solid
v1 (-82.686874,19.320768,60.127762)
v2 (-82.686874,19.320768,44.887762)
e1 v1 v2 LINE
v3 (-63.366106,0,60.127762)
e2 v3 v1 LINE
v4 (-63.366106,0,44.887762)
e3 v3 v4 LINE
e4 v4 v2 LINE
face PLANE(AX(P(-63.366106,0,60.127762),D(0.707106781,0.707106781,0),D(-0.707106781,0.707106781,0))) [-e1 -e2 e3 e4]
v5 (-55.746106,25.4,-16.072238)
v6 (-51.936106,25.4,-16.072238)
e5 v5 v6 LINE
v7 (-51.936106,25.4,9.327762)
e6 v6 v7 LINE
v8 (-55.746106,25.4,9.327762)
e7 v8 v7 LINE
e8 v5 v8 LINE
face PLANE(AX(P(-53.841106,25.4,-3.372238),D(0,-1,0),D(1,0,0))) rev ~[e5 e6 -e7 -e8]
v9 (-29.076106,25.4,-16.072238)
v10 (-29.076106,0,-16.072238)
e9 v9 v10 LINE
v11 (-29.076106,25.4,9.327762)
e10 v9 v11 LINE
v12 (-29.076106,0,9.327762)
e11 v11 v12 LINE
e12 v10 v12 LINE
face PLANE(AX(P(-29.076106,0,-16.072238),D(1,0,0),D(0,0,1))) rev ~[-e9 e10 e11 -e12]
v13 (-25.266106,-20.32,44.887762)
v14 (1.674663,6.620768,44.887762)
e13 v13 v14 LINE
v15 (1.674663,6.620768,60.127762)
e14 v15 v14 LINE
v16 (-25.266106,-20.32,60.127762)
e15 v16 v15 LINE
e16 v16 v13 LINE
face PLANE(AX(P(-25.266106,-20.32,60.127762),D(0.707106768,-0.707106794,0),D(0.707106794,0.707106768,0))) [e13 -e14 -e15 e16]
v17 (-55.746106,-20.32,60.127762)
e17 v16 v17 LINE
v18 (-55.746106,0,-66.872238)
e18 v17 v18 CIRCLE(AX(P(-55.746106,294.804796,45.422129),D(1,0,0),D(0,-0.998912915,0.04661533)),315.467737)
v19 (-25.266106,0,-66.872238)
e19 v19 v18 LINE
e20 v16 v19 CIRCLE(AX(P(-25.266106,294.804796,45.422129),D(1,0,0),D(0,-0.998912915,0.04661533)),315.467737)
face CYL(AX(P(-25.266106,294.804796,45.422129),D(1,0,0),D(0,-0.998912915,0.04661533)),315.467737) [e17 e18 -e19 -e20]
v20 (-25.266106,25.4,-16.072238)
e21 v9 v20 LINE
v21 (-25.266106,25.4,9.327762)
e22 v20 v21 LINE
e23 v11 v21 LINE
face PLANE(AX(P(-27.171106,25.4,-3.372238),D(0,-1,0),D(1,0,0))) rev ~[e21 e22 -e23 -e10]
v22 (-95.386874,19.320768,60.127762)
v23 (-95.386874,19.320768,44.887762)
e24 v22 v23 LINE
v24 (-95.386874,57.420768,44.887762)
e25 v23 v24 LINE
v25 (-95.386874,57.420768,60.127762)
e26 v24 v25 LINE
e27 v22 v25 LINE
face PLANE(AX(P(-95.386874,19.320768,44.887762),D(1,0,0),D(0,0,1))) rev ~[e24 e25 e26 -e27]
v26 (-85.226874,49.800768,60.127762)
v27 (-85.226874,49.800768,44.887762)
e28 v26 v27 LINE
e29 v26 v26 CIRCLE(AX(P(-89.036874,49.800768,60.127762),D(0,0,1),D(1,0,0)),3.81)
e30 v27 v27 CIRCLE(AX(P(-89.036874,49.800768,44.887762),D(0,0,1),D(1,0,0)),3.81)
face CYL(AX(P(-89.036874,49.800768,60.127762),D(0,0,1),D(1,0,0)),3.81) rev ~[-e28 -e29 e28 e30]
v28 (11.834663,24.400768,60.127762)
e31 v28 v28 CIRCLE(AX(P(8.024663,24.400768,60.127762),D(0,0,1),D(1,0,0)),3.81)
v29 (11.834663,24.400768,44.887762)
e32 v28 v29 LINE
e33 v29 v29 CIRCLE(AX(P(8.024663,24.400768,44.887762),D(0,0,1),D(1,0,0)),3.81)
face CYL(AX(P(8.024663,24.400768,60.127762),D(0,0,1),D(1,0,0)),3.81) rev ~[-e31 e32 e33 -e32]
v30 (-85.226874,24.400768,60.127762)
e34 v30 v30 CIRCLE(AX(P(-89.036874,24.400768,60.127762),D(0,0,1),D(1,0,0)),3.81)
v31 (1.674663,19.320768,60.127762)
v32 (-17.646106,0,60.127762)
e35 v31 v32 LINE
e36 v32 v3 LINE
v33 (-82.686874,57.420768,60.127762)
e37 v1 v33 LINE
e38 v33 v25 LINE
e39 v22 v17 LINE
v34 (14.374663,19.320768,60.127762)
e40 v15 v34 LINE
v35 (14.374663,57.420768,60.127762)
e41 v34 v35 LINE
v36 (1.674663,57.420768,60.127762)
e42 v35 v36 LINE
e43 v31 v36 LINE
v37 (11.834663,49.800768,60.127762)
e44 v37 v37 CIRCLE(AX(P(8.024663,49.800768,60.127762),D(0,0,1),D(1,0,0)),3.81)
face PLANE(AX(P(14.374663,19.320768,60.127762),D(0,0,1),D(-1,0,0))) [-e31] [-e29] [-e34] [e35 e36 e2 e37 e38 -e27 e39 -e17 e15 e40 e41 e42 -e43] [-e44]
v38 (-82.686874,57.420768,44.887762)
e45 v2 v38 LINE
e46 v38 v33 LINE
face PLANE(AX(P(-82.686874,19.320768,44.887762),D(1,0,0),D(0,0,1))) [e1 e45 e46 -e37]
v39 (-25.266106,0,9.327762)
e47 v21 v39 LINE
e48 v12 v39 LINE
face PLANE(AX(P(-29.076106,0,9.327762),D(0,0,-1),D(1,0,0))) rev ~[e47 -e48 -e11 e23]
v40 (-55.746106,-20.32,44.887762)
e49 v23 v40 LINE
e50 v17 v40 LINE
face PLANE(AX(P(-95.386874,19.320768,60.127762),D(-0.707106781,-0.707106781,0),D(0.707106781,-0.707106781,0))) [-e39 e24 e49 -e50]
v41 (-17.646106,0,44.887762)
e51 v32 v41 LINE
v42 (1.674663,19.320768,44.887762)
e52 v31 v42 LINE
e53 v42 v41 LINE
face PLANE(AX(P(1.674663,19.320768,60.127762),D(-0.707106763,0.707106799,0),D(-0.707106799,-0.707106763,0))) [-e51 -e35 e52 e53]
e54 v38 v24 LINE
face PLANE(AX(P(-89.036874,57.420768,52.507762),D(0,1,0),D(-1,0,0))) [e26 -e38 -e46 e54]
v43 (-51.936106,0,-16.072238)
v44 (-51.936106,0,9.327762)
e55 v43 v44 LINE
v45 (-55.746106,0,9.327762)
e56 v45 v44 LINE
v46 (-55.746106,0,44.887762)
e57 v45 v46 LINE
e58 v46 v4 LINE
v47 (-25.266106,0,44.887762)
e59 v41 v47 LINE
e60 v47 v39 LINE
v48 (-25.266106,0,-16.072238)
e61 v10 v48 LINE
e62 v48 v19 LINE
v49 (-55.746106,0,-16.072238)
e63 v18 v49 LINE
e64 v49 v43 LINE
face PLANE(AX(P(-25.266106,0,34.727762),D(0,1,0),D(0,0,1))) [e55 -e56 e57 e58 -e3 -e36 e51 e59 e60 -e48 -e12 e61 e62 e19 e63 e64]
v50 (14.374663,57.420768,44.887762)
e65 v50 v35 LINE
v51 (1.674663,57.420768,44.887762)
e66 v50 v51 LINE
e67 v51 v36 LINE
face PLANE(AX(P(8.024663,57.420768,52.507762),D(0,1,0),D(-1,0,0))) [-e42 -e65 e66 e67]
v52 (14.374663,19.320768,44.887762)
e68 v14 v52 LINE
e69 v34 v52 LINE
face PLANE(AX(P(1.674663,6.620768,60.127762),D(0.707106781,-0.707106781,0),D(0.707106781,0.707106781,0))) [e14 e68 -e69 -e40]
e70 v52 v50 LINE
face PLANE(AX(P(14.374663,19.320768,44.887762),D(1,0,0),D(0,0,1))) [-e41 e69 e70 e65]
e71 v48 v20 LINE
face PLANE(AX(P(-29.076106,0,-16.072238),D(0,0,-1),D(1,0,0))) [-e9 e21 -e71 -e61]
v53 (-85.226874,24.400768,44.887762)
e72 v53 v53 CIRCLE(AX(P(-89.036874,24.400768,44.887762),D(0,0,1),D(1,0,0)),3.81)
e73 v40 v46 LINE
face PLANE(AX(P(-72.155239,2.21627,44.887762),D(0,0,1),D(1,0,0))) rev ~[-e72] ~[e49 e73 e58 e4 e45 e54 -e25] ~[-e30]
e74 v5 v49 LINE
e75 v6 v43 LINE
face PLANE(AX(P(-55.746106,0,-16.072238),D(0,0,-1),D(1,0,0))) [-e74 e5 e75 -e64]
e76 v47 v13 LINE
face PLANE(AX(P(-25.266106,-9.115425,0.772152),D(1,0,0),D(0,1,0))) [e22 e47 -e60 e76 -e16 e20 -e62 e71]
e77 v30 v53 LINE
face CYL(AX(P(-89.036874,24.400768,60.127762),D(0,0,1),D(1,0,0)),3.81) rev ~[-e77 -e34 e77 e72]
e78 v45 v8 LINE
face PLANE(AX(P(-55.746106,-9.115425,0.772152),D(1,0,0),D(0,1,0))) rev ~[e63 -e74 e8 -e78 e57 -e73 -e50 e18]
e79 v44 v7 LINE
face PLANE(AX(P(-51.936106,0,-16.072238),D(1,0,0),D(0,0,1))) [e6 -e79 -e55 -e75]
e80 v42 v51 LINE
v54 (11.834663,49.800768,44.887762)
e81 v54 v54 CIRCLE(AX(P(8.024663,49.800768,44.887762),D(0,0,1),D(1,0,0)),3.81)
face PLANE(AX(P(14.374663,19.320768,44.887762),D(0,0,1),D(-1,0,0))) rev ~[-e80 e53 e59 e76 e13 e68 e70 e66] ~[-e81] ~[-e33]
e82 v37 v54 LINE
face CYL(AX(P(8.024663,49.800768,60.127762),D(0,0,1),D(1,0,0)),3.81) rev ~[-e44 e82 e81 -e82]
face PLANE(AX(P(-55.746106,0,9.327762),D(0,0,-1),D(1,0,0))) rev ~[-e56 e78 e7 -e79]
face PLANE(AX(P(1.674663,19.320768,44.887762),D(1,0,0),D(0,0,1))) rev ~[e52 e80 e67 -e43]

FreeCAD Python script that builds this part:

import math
import FreeCAD as App
import Part
import Sketcher
Q = App.Units.Quantity


def add_polygon(sketch, points):
    """Adds a closed chain of lines whose ends are joined by coincident constraints."""
    first, n = sketch.GeometryCount, len(points)
    for a, b in zip(points, points[1:] + points[:1]):
        sketch.addGeometry(Part.LineSegment(App.Vector(*a, 0), App.Vector(*b, 0)), False)
    for i in range(n):
        sketch.addConstraint(Sketcher.Constraint("Coincident", first + i, 2, first + (i + 1) % n, 1))

doc = App.newDocument("Part")
params = doc.addObject("Spreadsheet::Sheet", "Params")
for row, (alias, value) in enumerate([
    ("sketch1_height", "3 in"),
    ("sketch1_width", "1.2 in"),
    ("pad1_length", "0.3 in"),
    ("sketch2_height", "1 in"),
    ("sketch2_width", "0.15 in"),
    ("pad2_length", "1 in"),
    ("pad3_length", "0.3 in"),
    ("sketch3_height", "1 in"),
    ("sketch3_height2", "3 in"),
    ("sketch3_width", "0.3 in"),
    ("sketch3_width2", "0.8 in"),
    ("pad4_length", "1.2 in"),
    ("sketch4_width", "0.5 in"),
    ("sketch4_width2", "0.3 in"),
    ("sketch4_length", "1.5 in"),
    ("pad5_length", "0.6 in"),
    ("sketch5_width", "0.5 in"),
    ("sketch5_height", "0.6 in"),
    ("pad6_length", "1.5 in"),
    ("sketch6_diameter", "0.3 in"),
    ("pocket1_length", "1 in"),
], start=1):
    params.set(f"A{row}", alias)
    params.set(f"B{row}", "=" + value)
    params.setAlias(f"B{row}", alias)

body = doc.addObject("PartDesign::Body", "Body")

sketch1 = body.newObject("Sketcher::SketchObject", "Sketch")
sketch1.AttachmentSupport = (doc.getObject("XZ_Plane"), [""])
sketch1.MapMode = "FlatFace"
add_polygon(sketch1, [(-25, 35), (-56, 35), (-56, -41), (-25, -41)])
sketch1.addConstraint([
    Sketcher.Constraint("Horizontal", 0),
    Sketcher.Constraint("Vertical", 1),
    Sketcher.Constraint("Horizontal", 2),
    Sketcher.Constraint("Vertical", 3),
    Sketcher.Constraint("DistanceY", 1, 2, 1, 1, Q("3 in")),
    Sketcher.Constraint("DistanceX", 0, 2, 0, 1, Q("1.2 in")),
    Sketcher.Constraint("DistanceY", -1, 1, 0, 2, 34.727762),
    Sketcher.Constraint("DistanceX", 0, 2, -1, 1, 55.746106),
])
sketch1.setExpression("Constraints[8]", "Params.sketch1_height")
sketch1.setExpression("Constraints[9]", "Params.sketch1_width")
pad1 = body.newObject("PartDesign::Pad", "Pad")
pad1.Profile = sketch1
pad1.setExpression("Length", "Params.pad1_length")

sketch2 = body.newObject("Sketcher::SketchObject", "Sketch001")
sketch2.AttachmentSupport = (doc.getObject("XZ_Plane"), [""])
sketch2.MapMode = "FlatFace"
add_polygon(sketch2, [(-55.7, 9.3), (-55.7, -16.1), (-51.9, -16.1), (-51.9, 9.3)])
add_polygon(sketch2, [(-29.1, 9.3), (-29.1, -16.1), (-25.3, -16.1), (-25.3, 9.3)])
sketch2.addConstraint([
    Sketcher.Constraint("Vertical", 0),
    Sketcher.Constraint("Horizontal", 1),
    Sketcher.Constraint("Vertical", 2),
    Sketcher.Constraint("Horizontal", 3),
    Sketcher.Constraint("Vertical", 4),
    Sketcher.Constraint("Horizontal", 5),
    Sketcher.Constraint("Vertical", 6),
    Sketcher.Constraint("Horizontal", 7),
    Sketcher.Constraint("Horizontal", 1, 2, 4, 2),
    Sketcher.Constraint("Horizontal", 3, 2, 6, 2),
    Sketcher.Constraint("Equal", 3, 5),
    Sketcher.Constraint("DistanceY", 0, 2, 0, 1, Q("1 in")),
    Sketcher.Constraint("DistanceX", 1, 1, 1, 2, Q("0.15 in")),
    Sketcher.Constraint("DistanceX", 1, 2, 4, 2, Q("0.9 in")),
    Sketcher.Constraint("DistanceX", 0, 2, -1, 1, 55.746106),
    Sketcher.Constraint("DistanceY", 0, 2, -1, 1, 16.072238),
])
sketch2.setExpression("Constraints[19]", "Params.sketch2_height")
sketch2.setExpression("Constraints[20]", "Params.sketch2_width")
pad2 = body.newObject("PartDesign::Pad", "Pad001")
pad2.Profile = sketch2
pad2.setExpression("Length", "Params.pad2_length")
pad2.Reversed = True
pad3 = body.newObject("PartDesign::Pad", "Pad002")
pad3.Profile = sketch2
pad3.setExpression("Length", "Params.pad3_length")
pad3.Reversed = True

sketch3 = body.newObject("Sketcher::SketchObject", "Sketch002")
sketch3.AttachmentSupport = (doc.getObject("YZ_Plane"), [""])
sketch3.MapMode = "FlatFace"
sketch3.AttachmentOffset = App.Placement(App.Vector(0, 0, -25.266106), App.Rotation())
sketch3.addGeometry([
    Part.LineSegment(App.Vector(-8, 35, 0), App.Vector(0, 35, 0)),
    Part.LineSegment(App.Vector(0, 35, 0), App.Vector(0, 60, 0)),
    Part.LineSegment(App.Vector(0, 60, 0), App.Vector(-20, 60, 0)),
    Part.ArcOfCircle(Part.Circle(App.Vector(295, 45, 0), App.Vector(0, 0, 1), 315), math.radians(177), math.radians(201)),
    Part.LineSegment(App.Vector(0, -67, 0), App.Vector(0, -41, 0)),
    Part.LineSegment(App.Vector(0, -41, 0), App.Vector(-8, -41, 0)),
    Part.LineSegment(App.Vector(-8, -41, 0), App.Vector(-8, 35, 0)),
], False)
sketch3.addConstraint([
    Sketcher.Constraint("Coincident", 0, 2, 1, 1),
    Sketcher.Constraint("Coincident", 1, 2, 2, 1),
    Sketcher.Constraint("Coincident", 2, 2, 3, 1),
    Sketcher.Constraint("Coincident", 3, 2, 4, 1),
    Sketcher.Constraint("Coincident", 4, 2, 5, 1),
    Sketcher.Constraint("Coincident", 5, 2, 6, 1),
    Sketcher.Constraint("Coincident", 6, 2, 0, 1),
    Sketcher.Constraint("Horizontal", 0),
    Sketcher.Constraint("Vertical", 1),
    Sketcher.Constraint("Horizontal", 2),
    Sketcher.Constraint("Vertical", 4),
    Sketcher.Constraint("Horizontal", 5),
    Sketcher.Constraint("Vertical", 6),
    Sketcher.Constraint("PointOnObject", 0, 2, -2),
    Sketcher.Constraint("PointOnObject", 3, 2, -2),
    Sketcher.Constraint("Equal", 1, 4),
    Sketcher.Constraint("DistanceY", 1, 1, 1, 2, Q("1 in")),
    Sketcher.Constraint("DistanceY", 6, 1, 6, 2, Q("3 in")),
    Sketcher.Constraint("DistanceX", 0, 1, 0, 2, Q("0.3 in")),
    Sketcher.Constraint("DistanceX", 2, 2, 2, 1, Q("0.8 in")),
    Sketcher.Constraint("Radius", 3, 315.467737),
    Sketcher.Constraint("DistanceY", -1, 1, 3, 3, 45.422129),
])
sketch3.setExpression("Constraints[16]", "Params.sketch3_height")
sketch3.setExpression("Constraints[17]", "Params.sketch3_height2")
sketch3.setExpression("Constraints[18]", "Params.sketch3_width")
sketch3.setExpression("Constraints[19]", "Params.sketch3_width2")
pad4 = body.newObject("PartDesign::Pad", "Pad003")
pad4.Profile = sketch3
pad4.setExpression("Length", "Params.pad4_length")
pad4.Reversed = True

sketch4 = body.newObject("Sketcher::SketchObject", "Sketch003")
sketch4.AttachmentSupport = (doc.getObject("XY_Plane"), [""])
sketch4.MapMode = "FlatFace"
sketch4.AttachmentOffset = App.Placement(App.Vector(0, 0, 60.127762), App.Rotation())
add_polygon(sketch4, [(-25, 0), (-25, -20), (2, 7), (14, 19), (2, 19), (-18, 0)])
add_polygon(sketch4, [(-56, -20), (-56, 0), (-63, 0), (-83, 19), (-95, 19)])
sketch4.addConstraint([
    Sketcher.Constraint("Vertical", 0),
    Sketcher.Constraint("Horizontal", 3),
    Sketcher.Constraint("Horizontal", 5),
    Sketcher.Constraint("Vertical", 6),
    Sketcher.Constraint("Horizontal", 7),
    Sketcher.Constraint("Horizontal", 9),
    Sketcher.Constraint("PointOnObject", 4, 2, -1),
    Sketcher.Constraint("PointOnObject", 6, 2, -1),
    Sketcher.Constraint("Parallel", 1, 2),
    Sketcher.Constraint("Parallel", 2, 4),
    Sketcher.Constraint("Perpendicular", 4, 8),
    Sketcher.Constraint("Parallel", 8, 10),
    Sketcher.Constraint("Horizontal", 3, 2, 8, 2),
    Sketcher.Constraint("Horizontal", 0, 2, 10, 2),
    Sketcher.Constraint("Vertical", 1, 2, 3, 2),
    Sketcher.Constraint("Equal", 5, 7),
    Sketcher.Constraint("Equal", 3, 9),
    Sketcher.Constraint("DistanceX", 3, 2, 3, 1, Q("0.5 in")),
    Sketcher.Constraint("DistanceX", 5, 2, 5, 1, Q("0.3 in")),
    Sketcher.Constraint("Distance", 1, Q("1.5 in")),
    Sketcher.Constraint("DistanceX", 6, 2, 5, 2, Q("1.2 in")),
    Sketcher.Constraint("DistanceX", 0, 2, -1, 1, 25.266106),
])
sketch4.setExpression("Constraints[28]", "Params.sketch4_width")
sketch4.setExpression("Constraints[29]", "Params.sketch4_width2")
sketch4.setExpression("Constraints[30]", "Params.sketch4_length")
pad5 = body.newObject("PartDesign::Pad", "Pad004")
pad5.Profile = sketch4
pad5.setExpression("Length", "Params.pad5_length")
pad5.Reversed = True

sketch5 = body.newObject("Sketcher::SketchObject", "Sketch004")
sketch5.AttachmentSupport = (doc.getObject("XZ_Plane"), [""])
sketch5.MapMode = "FlatFace"
sketch5.AttachmentOffset = App.Placement(App.Vector(0, 0, -19.320768), App.Rotation())
add_polygon(sketch5, [(14, 60), (14, 45), (2, 45), (2, 60)])
add_polygon(sketch5, [(-83, 60), (-83, 45), (-95, 45), (-95, 60)])
sketch5.addConstraint([
    Sketcher.Constraint("Vertical", 0),
    Sketcher.Constraint("Horizontal", 1),
    Sketcher.Constraint("Vertical", 2),
    Sketcher.Constraint("Horizontal", 3),
    Sketcher.Constraint("Vertical", 4),
    Sketcher.Constraint("Horizontal", 5),
    Sketcher.Constraint("Vertical", 6),
    Sketcher.Constraint("Horizontal", 7),
    Sketcher.Constraint("Horizontal", 1, 2, 4, 2),
    Sketcher.Constraint("Horizontal", 3, 2, 6, 2),
    Sketcher.Constraint("Equal", 3, 5),
    Sketcher.Constraint("DistanceX", 1, 2, 1, 1, Q("0.5 in")),
    Sketcher.Constraint("DistanceY", 0, 2, 0, 1, Q("0.6 in")),
    Sketcher.Constraint("DistanceY", -1, 1, 2, 2, 60.127762),
    Sketcher.Constraint("DistanceX", -1, 1, 0, 2, 14.374663),
    Sketcher.Constraint("DistanceX", 4, 2, -1, 1, 82.686874),
])
sketch5.setExpression("Constraints[19]", "Params.sketch5_width")
sketch5.setExpression("Constraints[20]", "Params.sketch5_height")
pad6 = body.newObject("PartDesign::Pad", "Pad005")
pad6.Profile = sketch5
pad6.setExpression("Length", "Params.pad6_length")
pad6.Reversed = True

sketch6 = body.newObject("Sketcher::SketchObject", "Sketch005")
sketch6.AttachmentSupport = (doc.getObject("XY_Plane"), [""])
sketch6.MapMode = "FlatFace"
sketch6.AttachmentOffset = App.Placement(App.Vector(0, 0, 60.127762), App.Rotation())
sketch6.addGeometry([
    Part.Circle(App.Vector(-89, 49.8, 0), App.Vector(0, 0, 1), 3.8),
    Part.Circle(App.Vector(-89, 24.4, 0), App.Vector(0, 0, 1), 3.8),
    Part.Circle(App.Vector(8, 49.8, 0), App.Vector(0, 0, 1), 3.8),
    Part.Circle(App.Vector(8, 24.4, 0), App.Vector(0, 0, 1), 3.8),
], False)
sketch6.addConstraint([
    Sketcher.Constraint("Equal", 0, 1),
    Sketcher.Constraint("Equal", 1, 2),
    Sketcher.Constraint("Equal", 2, 3),
    Sketcher.Constraint("Horizontal", 0, 3, 2, 3),
    Sketcher.Constraint("Horizontal", 1, 3, 3, 3),
    Sketcher.Constraint("Vertical", 0, 3, 1, 3),
    Sketcher.Constraint("Vertical", 2, 3, 3, 3),
    Sketcher.Constraint("Diameter", 0, Q("0.3 in")),
    Sketcher.Constraint("DistanceY", 1, 3, 0, 3, Q("1 in")),
    Sketcher.Constraint("DistanceX", 0, 3, -1, 1, 89.036874),
    Sketcher.Constraint("DistanceY", -1, 1, 0, 3, 49.800768),
    Sketcher.Constraint("DistanceX", -1, 1, 2, 3, 8.024663),
])
sketch6.setExpression("Constraints[7]", "Params.sketch6_diameter")
pocket1 = body.newObject("PartDesign::Pocket", "Pocket")
pocket1.Profile = sketch6
pocket1.setExpression("Length", "Params.pocket1_length")

doc.recompute()
